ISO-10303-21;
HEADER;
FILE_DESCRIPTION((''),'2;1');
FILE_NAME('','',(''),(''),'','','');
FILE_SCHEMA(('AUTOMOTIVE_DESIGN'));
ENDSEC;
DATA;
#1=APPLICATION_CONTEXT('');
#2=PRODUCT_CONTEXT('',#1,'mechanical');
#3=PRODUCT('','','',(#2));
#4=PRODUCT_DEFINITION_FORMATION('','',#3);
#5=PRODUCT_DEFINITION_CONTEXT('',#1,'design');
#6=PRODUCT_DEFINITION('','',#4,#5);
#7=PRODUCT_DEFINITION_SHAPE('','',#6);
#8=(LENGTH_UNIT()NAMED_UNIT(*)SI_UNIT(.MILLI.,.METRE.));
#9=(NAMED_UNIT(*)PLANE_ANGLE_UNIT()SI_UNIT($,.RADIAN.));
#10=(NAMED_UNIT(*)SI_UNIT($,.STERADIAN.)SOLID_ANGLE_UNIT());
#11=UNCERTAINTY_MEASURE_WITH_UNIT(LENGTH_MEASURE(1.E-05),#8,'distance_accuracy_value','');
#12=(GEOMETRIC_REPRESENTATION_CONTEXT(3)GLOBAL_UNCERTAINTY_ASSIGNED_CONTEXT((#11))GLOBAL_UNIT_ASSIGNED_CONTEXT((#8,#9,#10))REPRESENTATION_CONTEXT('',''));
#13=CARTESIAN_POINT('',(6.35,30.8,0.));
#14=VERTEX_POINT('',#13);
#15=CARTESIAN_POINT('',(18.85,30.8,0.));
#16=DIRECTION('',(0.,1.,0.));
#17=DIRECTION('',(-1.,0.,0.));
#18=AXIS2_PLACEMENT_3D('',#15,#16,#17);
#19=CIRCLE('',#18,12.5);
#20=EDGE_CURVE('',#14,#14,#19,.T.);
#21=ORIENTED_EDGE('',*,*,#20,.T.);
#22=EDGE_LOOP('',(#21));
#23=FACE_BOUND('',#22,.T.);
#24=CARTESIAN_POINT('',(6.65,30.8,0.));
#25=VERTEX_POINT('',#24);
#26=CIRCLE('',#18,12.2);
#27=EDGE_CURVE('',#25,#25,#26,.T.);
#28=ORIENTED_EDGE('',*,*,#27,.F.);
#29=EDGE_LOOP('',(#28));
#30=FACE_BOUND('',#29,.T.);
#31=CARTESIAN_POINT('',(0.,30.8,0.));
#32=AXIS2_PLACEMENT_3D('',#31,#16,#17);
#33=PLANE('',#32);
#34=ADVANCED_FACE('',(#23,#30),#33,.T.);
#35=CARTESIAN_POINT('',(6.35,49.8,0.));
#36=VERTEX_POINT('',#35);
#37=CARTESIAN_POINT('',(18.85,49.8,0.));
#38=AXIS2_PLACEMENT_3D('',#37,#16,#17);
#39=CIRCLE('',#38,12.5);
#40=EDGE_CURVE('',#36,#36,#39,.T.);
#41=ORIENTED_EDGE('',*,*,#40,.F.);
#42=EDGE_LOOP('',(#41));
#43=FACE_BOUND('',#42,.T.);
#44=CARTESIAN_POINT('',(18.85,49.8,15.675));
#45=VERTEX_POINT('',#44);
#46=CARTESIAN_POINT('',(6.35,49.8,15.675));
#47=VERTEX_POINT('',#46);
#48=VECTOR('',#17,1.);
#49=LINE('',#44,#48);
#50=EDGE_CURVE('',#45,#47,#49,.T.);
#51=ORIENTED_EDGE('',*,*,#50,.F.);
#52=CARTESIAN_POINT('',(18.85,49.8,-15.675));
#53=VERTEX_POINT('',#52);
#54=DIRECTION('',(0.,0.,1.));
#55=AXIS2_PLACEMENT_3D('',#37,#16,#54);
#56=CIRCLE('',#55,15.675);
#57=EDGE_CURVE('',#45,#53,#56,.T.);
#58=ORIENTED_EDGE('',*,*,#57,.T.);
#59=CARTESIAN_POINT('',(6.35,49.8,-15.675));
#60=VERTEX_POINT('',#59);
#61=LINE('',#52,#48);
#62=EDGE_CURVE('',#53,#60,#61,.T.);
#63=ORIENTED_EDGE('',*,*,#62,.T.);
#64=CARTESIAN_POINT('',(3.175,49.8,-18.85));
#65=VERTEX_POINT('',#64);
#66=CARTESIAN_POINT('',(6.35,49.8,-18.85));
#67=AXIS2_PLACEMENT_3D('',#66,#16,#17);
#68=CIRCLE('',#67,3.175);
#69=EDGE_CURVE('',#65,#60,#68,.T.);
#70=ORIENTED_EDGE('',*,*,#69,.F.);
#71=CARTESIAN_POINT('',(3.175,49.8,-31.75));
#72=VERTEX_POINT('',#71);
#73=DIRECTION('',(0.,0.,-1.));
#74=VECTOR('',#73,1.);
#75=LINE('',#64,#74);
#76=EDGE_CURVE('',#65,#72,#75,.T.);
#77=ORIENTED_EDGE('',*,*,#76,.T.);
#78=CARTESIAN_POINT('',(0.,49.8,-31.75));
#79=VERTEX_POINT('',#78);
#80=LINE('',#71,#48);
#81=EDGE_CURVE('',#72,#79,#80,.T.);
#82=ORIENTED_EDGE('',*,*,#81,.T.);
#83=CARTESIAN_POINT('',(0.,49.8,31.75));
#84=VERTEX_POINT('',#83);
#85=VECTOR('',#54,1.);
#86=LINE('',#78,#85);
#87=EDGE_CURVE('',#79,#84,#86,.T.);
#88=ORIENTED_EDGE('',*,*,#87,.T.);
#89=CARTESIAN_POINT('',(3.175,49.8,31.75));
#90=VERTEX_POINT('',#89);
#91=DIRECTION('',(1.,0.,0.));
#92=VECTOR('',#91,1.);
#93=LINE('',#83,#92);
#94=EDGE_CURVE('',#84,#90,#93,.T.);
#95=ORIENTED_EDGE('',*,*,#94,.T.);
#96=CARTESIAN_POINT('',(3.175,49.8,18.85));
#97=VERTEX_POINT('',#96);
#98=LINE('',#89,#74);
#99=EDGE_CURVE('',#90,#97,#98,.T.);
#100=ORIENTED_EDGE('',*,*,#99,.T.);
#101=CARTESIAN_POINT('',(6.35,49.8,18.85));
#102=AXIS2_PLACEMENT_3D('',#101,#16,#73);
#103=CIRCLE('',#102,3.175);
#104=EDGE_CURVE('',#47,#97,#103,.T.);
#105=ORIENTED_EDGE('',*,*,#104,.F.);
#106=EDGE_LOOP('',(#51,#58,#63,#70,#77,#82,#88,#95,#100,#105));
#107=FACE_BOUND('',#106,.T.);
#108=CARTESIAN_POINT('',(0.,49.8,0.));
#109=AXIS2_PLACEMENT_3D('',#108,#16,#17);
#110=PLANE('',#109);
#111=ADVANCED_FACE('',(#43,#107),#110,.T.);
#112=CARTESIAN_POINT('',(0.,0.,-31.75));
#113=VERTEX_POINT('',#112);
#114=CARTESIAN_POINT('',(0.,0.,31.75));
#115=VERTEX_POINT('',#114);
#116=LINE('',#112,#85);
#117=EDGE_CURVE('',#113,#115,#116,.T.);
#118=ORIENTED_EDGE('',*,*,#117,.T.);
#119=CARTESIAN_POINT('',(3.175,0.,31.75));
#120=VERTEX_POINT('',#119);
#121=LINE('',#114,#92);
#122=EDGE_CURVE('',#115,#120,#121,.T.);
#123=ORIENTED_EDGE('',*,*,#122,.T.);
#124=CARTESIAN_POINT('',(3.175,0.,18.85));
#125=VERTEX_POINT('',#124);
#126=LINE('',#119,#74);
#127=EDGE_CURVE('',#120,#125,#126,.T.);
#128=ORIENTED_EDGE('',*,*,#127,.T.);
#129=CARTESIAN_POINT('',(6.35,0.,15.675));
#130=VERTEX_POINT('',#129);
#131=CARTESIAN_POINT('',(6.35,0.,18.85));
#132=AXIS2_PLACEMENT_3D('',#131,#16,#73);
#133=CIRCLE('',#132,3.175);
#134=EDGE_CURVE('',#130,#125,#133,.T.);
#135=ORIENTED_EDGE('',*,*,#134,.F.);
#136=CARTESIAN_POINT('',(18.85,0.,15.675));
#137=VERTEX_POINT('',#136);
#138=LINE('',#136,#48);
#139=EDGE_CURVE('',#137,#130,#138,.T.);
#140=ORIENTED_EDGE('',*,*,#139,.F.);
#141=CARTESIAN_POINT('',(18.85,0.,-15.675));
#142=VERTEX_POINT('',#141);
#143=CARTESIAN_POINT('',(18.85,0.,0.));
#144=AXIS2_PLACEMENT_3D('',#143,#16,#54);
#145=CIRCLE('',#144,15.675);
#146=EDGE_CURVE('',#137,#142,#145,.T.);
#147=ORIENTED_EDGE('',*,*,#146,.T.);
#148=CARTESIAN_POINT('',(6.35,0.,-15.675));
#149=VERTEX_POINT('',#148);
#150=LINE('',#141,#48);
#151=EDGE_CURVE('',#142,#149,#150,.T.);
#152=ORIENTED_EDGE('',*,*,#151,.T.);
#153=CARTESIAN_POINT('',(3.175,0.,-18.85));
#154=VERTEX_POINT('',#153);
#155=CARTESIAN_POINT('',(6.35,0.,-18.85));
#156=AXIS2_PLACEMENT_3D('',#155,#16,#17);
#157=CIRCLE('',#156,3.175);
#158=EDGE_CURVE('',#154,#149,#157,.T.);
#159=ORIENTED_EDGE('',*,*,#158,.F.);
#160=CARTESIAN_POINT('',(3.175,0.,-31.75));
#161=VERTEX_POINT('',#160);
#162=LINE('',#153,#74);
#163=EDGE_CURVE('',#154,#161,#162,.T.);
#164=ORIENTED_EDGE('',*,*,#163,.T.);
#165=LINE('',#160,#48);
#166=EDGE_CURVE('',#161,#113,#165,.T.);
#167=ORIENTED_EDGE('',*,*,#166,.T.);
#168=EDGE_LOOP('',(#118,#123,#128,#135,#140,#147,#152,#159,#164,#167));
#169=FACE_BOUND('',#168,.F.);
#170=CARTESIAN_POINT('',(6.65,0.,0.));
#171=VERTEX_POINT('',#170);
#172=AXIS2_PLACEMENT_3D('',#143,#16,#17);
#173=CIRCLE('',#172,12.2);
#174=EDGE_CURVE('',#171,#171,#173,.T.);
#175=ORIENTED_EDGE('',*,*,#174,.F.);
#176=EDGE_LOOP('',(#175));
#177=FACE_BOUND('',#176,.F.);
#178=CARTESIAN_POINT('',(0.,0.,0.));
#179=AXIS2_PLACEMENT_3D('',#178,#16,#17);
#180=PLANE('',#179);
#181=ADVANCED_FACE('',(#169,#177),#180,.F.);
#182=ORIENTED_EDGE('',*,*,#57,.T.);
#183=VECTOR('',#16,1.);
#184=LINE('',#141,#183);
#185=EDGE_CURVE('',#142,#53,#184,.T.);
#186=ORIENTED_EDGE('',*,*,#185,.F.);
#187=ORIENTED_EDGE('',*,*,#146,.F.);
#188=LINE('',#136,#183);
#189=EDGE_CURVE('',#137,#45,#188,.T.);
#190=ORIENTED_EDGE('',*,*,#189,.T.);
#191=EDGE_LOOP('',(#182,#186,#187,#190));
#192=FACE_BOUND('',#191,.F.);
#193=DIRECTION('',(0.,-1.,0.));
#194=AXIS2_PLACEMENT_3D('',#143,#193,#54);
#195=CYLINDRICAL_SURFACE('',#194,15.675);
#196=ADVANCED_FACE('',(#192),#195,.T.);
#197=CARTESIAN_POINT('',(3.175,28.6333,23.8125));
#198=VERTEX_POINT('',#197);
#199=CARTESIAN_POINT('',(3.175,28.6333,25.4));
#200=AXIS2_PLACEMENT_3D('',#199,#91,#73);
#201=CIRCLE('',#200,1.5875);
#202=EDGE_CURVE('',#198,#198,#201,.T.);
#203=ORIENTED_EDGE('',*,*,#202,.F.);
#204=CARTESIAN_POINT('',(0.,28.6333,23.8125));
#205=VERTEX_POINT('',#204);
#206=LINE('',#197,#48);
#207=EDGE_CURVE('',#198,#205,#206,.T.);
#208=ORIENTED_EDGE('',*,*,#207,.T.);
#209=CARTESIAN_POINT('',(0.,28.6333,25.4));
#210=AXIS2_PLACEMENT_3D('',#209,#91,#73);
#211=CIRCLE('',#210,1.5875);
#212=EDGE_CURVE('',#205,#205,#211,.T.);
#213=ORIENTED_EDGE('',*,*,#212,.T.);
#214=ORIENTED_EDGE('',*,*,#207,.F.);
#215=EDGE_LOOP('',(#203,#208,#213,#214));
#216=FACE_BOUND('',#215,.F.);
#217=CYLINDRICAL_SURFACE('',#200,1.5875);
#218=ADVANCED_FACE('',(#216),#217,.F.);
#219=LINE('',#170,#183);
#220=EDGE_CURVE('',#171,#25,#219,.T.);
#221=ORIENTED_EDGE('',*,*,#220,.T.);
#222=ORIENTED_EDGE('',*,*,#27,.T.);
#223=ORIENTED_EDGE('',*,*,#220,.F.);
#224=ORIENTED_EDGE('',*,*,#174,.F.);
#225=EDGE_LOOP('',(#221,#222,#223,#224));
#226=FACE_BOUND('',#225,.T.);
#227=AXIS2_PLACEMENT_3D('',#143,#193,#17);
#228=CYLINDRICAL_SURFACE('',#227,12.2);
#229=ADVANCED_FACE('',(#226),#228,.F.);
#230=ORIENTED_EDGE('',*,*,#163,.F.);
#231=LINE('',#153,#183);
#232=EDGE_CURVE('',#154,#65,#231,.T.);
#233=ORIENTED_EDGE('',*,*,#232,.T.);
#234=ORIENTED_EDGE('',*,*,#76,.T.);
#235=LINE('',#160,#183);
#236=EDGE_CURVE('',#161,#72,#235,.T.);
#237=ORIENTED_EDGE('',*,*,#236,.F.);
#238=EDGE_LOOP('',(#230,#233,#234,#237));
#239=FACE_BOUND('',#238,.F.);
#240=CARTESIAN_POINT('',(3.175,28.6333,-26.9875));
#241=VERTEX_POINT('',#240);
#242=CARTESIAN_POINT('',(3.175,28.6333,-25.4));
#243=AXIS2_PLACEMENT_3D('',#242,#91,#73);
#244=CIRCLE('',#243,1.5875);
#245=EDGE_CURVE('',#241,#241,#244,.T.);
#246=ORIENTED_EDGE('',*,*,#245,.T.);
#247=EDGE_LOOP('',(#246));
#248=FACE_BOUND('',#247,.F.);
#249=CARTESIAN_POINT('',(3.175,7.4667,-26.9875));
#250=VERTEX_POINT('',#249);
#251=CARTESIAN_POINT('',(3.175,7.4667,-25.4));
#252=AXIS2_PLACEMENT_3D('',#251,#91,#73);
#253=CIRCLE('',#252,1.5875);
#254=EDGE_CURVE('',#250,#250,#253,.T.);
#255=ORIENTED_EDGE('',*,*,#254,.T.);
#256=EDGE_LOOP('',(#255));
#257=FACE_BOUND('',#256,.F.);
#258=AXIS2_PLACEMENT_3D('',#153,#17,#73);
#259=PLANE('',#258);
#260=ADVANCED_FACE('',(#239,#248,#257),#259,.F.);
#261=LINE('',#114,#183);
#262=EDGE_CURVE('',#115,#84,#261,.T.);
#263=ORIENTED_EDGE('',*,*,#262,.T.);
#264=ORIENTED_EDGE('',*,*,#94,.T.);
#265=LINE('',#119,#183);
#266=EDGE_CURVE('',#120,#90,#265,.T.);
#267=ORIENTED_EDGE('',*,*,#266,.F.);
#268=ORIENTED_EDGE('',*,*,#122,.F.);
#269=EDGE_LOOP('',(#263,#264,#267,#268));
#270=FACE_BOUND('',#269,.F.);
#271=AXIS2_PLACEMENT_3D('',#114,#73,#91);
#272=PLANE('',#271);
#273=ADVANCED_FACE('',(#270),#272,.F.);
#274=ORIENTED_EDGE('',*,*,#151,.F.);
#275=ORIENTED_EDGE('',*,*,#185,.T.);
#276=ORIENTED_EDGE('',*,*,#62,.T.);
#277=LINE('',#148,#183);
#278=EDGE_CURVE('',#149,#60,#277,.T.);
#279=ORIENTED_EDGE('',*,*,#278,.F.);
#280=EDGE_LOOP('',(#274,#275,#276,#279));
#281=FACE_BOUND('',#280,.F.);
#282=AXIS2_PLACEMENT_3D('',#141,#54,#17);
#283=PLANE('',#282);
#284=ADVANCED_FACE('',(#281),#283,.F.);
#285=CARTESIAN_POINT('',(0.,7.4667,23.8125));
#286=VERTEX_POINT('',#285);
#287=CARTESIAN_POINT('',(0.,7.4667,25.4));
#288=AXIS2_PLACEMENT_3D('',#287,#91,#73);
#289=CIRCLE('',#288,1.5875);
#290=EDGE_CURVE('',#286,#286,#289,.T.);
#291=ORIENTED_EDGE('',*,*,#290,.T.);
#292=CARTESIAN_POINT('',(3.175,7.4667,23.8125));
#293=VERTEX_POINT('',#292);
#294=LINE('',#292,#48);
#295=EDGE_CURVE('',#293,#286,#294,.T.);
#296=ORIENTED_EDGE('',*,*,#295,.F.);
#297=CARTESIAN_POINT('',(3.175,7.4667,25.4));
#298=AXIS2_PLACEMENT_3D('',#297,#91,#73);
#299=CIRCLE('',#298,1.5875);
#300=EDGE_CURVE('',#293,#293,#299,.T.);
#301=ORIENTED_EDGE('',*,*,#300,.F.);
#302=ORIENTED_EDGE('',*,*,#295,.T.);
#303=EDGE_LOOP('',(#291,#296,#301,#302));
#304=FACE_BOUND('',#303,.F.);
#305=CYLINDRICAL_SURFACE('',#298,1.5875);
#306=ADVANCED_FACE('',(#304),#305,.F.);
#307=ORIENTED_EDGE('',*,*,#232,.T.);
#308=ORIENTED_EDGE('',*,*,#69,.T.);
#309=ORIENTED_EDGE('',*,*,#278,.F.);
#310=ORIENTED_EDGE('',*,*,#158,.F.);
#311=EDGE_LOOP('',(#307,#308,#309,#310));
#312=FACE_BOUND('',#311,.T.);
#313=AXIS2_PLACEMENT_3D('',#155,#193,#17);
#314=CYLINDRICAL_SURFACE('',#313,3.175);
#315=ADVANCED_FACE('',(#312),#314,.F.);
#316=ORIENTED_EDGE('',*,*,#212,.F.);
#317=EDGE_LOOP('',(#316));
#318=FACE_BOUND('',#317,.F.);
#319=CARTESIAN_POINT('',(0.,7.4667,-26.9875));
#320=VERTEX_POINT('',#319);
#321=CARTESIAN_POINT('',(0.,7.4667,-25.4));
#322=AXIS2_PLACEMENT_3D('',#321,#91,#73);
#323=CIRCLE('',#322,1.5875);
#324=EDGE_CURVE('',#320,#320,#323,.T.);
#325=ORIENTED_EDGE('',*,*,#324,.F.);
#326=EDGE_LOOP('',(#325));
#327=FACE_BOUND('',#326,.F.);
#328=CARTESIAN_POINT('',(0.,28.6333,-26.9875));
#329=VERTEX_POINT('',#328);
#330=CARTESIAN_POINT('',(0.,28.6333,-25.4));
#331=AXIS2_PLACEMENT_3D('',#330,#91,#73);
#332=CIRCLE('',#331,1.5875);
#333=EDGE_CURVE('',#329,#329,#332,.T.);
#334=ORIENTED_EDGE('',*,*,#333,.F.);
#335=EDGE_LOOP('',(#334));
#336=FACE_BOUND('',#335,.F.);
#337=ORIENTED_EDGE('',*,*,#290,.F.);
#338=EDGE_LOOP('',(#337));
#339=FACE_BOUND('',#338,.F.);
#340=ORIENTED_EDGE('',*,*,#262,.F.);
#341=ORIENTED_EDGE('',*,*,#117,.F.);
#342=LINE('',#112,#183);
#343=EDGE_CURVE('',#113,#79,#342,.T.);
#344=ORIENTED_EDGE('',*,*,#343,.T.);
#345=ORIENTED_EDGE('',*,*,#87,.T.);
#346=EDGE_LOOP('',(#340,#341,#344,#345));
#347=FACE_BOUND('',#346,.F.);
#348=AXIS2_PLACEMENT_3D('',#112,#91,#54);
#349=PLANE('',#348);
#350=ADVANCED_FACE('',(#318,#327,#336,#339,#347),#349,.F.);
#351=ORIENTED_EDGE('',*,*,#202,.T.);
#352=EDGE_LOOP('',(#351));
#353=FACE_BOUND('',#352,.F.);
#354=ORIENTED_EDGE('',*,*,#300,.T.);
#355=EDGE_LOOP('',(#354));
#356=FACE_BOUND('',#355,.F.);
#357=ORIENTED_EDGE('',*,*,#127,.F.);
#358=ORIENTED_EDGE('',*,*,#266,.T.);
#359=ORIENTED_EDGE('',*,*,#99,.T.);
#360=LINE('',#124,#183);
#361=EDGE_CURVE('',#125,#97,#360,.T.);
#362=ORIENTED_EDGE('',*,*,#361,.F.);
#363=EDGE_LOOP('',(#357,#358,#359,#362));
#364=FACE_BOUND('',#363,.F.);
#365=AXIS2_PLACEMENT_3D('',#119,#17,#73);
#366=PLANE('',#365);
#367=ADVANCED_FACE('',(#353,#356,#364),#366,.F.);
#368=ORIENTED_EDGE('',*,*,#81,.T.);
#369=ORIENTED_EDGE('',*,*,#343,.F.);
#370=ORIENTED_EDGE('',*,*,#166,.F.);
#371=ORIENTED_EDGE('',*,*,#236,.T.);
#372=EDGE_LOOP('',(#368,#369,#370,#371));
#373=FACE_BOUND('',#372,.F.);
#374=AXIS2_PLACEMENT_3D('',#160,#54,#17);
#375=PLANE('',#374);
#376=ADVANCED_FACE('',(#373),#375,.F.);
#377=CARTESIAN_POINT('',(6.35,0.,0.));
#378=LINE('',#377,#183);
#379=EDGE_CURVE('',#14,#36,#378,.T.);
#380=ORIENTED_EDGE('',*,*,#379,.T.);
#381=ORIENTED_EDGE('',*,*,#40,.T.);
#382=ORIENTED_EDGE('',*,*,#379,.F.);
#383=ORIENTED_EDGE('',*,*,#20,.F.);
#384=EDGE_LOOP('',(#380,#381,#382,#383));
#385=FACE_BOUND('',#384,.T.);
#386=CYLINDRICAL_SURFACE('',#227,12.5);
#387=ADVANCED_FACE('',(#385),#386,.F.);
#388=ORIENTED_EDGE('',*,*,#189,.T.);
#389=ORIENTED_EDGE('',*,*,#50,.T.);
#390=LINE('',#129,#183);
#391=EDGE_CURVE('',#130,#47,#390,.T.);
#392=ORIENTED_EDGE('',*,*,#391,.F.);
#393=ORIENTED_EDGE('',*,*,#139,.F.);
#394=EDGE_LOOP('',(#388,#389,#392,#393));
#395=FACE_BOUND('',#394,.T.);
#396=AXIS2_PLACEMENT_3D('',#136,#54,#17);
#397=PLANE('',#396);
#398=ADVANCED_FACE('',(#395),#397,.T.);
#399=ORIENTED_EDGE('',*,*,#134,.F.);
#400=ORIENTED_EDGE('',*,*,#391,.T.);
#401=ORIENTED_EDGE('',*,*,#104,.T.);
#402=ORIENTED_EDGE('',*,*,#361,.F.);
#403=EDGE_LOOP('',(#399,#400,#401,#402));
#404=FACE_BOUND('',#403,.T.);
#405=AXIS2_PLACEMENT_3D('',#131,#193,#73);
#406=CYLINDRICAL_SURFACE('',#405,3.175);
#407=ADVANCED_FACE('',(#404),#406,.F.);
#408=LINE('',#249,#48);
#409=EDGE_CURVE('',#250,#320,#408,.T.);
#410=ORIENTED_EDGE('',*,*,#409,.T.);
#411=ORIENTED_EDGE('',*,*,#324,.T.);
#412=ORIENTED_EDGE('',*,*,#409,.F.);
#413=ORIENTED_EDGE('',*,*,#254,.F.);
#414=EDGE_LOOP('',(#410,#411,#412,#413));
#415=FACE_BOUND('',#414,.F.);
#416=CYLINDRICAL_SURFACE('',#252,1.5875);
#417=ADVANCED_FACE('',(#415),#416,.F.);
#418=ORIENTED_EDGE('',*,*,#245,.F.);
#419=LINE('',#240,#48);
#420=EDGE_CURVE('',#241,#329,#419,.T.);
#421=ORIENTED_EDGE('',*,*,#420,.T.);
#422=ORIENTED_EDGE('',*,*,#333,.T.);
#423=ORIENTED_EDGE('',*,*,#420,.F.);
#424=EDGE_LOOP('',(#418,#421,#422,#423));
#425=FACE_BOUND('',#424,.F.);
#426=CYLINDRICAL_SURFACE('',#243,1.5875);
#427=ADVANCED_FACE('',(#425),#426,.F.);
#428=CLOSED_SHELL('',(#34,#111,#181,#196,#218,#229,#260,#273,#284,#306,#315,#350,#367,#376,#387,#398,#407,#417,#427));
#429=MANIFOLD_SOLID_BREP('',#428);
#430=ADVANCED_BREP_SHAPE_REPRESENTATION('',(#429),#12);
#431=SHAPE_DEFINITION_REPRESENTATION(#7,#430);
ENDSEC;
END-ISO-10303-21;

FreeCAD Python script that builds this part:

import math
import FreeCAD as App
import Part
import Sketcher

V = App.Vector

doc = App.newDocument("Part")
body = doc.addObject("PartDesign::Body", "Body")

# Sketch on XZ plane
sketch1 = body.newObject("Sketcher::SketchObject", "Sketch")
sketch1.AttachmentSupport = (doc.getObject("XZ_Plane"), [""])
sketch1.MapMode = "FlatFace"
sketch1.addGeometry([
    Part.LineSegment(V(0, -31.75, 0), V(0, 31.75, 0)),  # 0
    Part.LineSegment(V(0, 31.75, 0), V(3.175, 31.75, 0)),  # 1
    Part.LineSegment(V(3.175, 31.75, 0), V(3.175, 18.85, 0)),  # 2
    Part.ArcOfCircle(Part.Circle(V(6.35, 18.85, 0), V(0, 0, 1), 3.175), math.radians(180), math.radians(270)),  # 3
    Part.LineSegment(V(6.35, 15.675, 0), V(18.85, 15.675, 0)),  # 4
    Part.ArcOfCircle(Part.Circle(V(18.85, 0, 0), V(0, 0, 1), 15.675), math.radians(-90), math.radians(90)),  # 5
    Part.LineSegment(V(18.85, -15.675, 0), V(6.35, -15.675, 0)),  # 6
    Part.ArcOfCircle(Part.Circle(V(6.35, -18.85, 0), V(0, 0, 1), 3.175), math.radians(90), math.radians(180)),  # 7
    Part.LineSegment(V(3.175, -18.85, 0), V(3.175, -31.75, 0)),  # 8
    Part.LineSegment(V(3.175, -31.75, 0), V(0, -31.75, 0)),  # 9
    Part.Circle(V(18.85, 0, 0), V(0, 0, 1), 12.5),  # 10
], False)
sketch1.addConstraint([
    Sketcher.Constraint("Coincident", 0, 2, 1, 1),
    Sketcher.Constraint("Coincident", 1, 2, 2, 1),
    Sketcher.Constraint("Tangent", 2, 2, 3, 1),
    Sketcher.Constraint("Tangent", 3, 2, 4, 1),
    Sketcher.Constraint("Tangent", 4, 2, 5, 2),
    Sketcher.Constraint("Tangent", 5, 1, 6, 1),
    Sketcher.Constraint("Tangent", 6, 2, 7, 1),
    Sketcher.Constraint("Tangent", 7, 2, 8, 1),
    Sketcher.Constraint("Coincident", 8, 2, 9, 1),
    Sketcher.Constraint("Coincident", 9, 2, 0, 1),
    Sketcher.Constraint("Vertical", 0),
    Sketcher.Constraint("Horizontal", 1),
    Sketcher.Constraint("Vertical", 2),
    Sketcher.Constraint("Horizontal", 4),
    Sketcher.Constraint("Horizontal", 6),
    Sketcher.Constraint("Vertical", 8),
    Sketcher.Constraint("Horizontal", 9),
    Sketcher.Constraint("Coincident", 10, 3, 5, 3),
    Sketcher.Constraint("Equal", 3, 7),
    Sketcher.Constraint("Symmetric", 0, 2, 9, 2, -1, 1),
    Sketcher.Constraint("Symmetric", 3, 3, 7, 3, -1),
    Sketcher.Constraint("Diameter", 10, 25.0),
    Sketcher.Constraint("DistanceY", 0, 1, 0, 2, 63.5),
    Sketcher.Constraint("Radius", 3, 3.175),
    Sketcher.Constraint("Radius", 5, 15.675),
    Sketcher.Constraint("DistanceX", 1, 1, 1, 2, 3.175),
    Sketcher.Constraint("DistanceX", -1, 1, 5, 3, 18.85),
])
pad1 = body.newObject("PartDesign::Pad", "Pad")
pad1.Profile = sketch1
pad1.Length = 49.8
pad1.Reversed = True

# Sketch on XZ plane
sketch2 = body.newObject("Sketcher::SketchObject", "Sketch001")
sketch2.AttachmentSupport = (doc.getObject("XZ_Plane"), [""])
sketch2.MapMode = "FlatFace"
sketch2.addGeometry([
    Part.Circle(V(18.85, 0, 0), V(0, 0, 1), 12.5),
    Part.Circle(V(18.85, 0, 0), V(0, 0, 1), 12.2),
], False)
sketch2.addConstraint([
    Sketcher.Constraint("Coincident", 1, 3, 0, 3),
    Sketcher.Constraint("PointOnObject", 0, 3, -1),
    Sketcher.Constraint("Diameter", 0, 25.0),
    Sketcher.Constraint("Diameter", 1, 24.4),
    Sketcher.Constraint("DistanceX", -1, 1, 0, 3, 18.85),
])
pad2 = body.newObject("PartDesign::Pad", "Pad001")
pad2.Profile = sketch2
pad2.Length = 30.8
pad2.Reversed = True

# Sketch on YZ plane
sketch3 = body.newObject("Sketcher::SketchObject", "Sketch002")
sketch3.AttachmentSupport = (doc.getObject("YZ_Plane"), [""])
sketch3.MapMode = "FlatFace"
sketch3.AttachmentOffset = App.Placement(V(0, 0, 3.175), App.Rotation())
sketch3.addGeometry([
    Part.Circle(V(28.6333, 25.4, 0), V(0, 0, 1), 1.5875),
    Part.Circle(V(7.4667, 25.4, 0), V(0, 0, 1), 1.5875),
    Part.Circle(V(28.6333, -25.4, 0), V(0, 0, 1), 1.5875),
    Part.Circle(V(7.4667, -25.4, 0), V(0, 0, 1), 1.5875),
], False)
sketch3.addConstraint([
    Sketcher.Constraint("Equal", 0, 1),
    Sketcher.Constraint("Equal", 1, 2),
    Sketcher.Constraint("Equal", 2, 3),
    Sketcher.Constraint("Symmetric", 0, 3, 2, 3, -1),
    Sketcher.Constraint("Symmetric", 1, 3, 3, 3, -1),
    Sketcher.Constraint("Horizontal", 0, 3, 1, 3),
    Sketcher.Constraint("Diameter", 0, 3.175),
    Sketcher.Constraint("DistanceY", -1, 1, 0, 3, 25.4),
    Sketcher.Constraint("DistanceX", 1, 3, 0, 3, 21.1666),
    Sketcher.Constraint("DistanceX", -1, 1, 0, 3, 28.6333),
])
pocket1 = body.newObject("PartDesign::Pocket", "Pocket")
pocket1.Profile = sketch3
pocket1.Length = 3.175

doc.recompute()
